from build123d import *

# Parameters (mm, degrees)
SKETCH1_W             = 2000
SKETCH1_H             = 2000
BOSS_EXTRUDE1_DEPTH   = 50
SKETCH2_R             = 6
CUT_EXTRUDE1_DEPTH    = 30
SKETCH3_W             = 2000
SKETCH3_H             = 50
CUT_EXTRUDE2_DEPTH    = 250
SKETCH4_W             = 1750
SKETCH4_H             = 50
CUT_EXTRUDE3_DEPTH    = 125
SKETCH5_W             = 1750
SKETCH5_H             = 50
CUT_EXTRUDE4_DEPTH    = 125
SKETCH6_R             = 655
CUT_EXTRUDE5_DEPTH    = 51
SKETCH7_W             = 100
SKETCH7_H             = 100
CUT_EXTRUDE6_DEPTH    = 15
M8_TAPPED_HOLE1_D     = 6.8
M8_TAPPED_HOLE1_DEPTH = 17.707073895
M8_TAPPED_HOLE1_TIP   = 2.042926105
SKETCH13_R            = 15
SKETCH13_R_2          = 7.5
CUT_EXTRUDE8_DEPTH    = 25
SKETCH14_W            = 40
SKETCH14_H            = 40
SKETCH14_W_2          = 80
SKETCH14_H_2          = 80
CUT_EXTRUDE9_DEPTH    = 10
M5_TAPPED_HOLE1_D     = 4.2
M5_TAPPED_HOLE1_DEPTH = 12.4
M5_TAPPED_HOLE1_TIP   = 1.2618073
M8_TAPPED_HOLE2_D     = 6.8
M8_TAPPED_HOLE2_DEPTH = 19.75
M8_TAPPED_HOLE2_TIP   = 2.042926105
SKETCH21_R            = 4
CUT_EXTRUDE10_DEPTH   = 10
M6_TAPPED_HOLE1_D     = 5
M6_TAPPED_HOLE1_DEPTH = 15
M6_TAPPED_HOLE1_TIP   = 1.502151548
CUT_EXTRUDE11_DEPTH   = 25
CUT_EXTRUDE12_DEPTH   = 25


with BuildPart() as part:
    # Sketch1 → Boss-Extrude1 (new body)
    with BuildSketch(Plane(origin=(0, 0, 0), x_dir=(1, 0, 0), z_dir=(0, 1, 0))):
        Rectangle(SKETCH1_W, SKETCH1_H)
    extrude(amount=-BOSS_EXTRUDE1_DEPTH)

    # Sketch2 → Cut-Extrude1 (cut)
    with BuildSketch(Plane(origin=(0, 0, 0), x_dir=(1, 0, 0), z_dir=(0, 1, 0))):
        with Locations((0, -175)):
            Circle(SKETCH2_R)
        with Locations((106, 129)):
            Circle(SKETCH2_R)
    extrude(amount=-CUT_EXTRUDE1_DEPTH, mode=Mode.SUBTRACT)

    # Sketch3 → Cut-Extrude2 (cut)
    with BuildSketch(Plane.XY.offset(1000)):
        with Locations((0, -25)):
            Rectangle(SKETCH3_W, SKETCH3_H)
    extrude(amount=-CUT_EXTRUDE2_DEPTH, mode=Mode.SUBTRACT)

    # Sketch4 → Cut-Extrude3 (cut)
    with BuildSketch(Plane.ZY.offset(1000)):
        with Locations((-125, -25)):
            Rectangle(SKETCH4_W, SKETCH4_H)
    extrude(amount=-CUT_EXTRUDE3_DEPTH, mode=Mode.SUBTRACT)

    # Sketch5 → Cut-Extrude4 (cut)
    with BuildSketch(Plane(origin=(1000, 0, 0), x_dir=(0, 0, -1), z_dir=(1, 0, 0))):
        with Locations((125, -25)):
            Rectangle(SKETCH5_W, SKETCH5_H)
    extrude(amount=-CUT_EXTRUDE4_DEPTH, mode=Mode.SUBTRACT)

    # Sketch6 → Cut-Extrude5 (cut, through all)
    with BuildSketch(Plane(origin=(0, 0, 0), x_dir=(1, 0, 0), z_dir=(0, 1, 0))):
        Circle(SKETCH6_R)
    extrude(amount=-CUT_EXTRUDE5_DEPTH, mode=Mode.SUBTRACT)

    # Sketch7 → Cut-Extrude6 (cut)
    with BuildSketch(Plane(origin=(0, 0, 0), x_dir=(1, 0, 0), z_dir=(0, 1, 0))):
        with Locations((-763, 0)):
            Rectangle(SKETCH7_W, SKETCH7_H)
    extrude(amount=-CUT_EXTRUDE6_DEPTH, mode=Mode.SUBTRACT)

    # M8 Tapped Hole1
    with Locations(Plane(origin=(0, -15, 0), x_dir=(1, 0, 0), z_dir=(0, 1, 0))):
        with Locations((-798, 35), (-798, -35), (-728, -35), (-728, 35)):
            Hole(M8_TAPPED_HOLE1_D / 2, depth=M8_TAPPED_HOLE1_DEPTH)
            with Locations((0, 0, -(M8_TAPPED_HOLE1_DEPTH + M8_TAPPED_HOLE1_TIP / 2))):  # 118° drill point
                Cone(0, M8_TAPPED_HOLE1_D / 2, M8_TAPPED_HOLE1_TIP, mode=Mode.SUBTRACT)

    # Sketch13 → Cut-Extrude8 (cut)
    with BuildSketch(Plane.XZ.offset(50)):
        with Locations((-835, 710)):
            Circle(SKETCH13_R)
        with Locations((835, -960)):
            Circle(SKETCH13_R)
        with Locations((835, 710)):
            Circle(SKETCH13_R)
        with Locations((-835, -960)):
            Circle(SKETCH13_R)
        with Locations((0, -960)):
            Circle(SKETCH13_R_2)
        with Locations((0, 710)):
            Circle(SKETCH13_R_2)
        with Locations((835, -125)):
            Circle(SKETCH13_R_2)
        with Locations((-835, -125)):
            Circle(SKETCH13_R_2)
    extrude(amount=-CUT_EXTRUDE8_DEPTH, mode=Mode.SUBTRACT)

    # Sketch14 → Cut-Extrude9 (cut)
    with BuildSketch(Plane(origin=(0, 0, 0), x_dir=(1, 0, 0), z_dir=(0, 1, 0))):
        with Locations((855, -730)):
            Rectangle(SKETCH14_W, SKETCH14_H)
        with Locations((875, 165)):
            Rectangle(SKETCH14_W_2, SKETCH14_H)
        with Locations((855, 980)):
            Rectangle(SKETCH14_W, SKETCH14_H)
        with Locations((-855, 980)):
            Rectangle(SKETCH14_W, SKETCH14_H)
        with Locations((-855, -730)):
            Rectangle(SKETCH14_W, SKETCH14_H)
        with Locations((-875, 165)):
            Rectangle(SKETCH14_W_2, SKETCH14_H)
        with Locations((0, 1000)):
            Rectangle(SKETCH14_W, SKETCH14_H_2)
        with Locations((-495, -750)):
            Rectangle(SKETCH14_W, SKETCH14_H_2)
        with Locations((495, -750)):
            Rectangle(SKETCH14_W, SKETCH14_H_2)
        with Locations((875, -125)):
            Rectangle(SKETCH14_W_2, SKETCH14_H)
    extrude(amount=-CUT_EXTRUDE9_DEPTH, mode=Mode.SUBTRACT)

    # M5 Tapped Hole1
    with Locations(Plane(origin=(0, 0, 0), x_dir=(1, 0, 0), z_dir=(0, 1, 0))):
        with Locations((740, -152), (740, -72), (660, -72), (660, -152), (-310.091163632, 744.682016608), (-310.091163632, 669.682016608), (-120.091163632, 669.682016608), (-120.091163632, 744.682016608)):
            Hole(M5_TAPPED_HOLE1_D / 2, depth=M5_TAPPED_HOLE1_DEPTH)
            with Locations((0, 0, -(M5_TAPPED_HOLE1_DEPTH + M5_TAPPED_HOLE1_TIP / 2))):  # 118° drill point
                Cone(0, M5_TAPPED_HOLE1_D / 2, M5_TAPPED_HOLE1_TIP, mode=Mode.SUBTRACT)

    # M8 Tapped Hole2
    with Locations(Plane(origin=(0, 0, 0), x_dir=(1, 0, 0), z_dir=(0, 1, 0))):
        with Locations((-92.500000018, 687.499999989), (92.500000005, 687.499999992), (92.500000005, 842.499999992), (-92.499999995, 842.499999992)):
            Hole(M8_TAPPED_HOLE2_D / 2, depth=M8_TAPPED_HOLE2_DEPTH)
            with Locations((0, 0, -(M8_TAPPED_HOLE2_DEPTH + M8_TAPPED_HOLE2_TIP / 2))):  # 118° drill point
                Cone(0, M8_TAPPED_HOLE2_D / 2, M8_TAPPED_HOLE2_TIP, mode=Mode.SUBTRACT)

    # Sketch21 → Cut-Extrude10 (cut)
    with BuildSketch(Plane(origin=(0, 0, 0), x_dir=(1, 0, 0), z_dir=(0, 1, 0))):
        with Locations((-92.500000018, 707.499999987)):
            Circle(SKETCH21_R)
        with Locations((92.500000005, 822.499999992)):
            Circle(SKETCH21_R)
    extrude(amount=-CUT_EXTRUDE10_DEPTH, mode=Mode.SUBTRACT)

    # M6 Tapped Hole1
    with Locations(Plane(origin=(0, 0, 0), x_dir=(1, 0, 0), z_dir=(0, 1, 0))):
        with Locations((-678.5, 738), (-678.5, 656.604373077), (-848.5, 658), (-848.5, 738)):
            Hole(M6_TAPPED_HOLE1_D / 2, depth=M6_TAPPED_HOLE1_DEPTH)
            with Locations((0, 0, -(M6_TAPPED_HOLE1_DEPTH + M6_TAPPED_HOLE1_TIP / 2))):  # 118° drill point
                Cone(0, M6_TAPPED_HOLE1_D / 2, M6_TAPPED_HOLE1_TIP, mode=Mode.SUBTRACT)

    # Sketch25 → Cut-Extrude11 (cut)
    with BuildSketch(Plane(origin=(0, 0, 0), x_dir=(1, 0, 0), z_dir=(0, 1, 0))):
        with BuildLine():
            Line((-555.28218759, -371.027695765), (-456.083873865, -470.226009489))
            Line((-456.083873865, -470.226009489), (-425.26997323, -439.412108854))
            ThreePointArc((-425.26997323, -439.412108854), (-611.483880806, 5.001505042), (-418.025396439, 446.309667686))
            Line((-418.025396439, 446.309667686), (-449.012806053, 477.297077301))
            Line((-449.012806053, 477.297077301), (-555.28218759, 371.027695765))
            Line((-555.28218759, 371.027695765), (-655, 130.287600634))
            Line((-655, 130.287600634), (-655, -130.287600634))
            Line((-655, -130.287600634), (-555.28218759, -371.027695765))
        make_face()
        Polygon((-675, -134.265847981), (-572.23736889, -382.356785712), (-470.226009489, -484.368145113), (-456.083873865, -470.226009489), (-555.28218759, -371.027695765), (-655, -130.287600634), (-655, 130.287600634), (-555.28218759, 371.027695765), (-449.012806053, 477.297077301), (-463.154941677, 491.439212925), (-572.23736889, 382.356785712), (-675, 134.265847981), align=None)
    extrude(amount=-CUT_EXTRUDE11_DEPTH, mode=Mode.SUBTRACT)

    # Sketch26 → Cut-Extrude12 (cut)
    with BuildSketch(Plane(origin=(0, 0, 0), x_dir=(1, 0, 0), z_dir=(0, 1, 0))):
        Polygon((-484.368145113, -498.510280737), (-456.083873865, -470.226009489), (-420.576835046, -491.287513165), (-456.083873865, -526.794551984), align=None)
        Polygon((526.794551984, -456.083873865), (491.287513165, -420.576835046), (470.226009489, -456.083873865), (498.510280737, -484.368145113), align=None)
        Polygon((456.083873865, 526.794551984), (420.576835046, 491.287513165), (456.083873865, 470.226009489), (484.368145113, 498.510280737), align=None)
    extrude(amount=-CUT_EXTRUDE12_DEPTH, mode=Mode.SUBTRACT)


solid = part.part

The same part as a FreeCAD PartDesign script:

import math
import FreeCAD as App
import Part
import Sketcher
Q = App.Units.Quantity


def add_polygon(sketch, points):
    """Adds a closed chain of lines whose ends are joined by coincident constraints."""
    first, n = sketch.GeometryCount, len(points)
    for a, b in zip(points, points[1:] + points[:1]):
        sketch.addGeometry(Part.LineSegment(App.Vector(*a, 0), App.Vector(*b, 0)), False)
    for i in range(n):
        sketch.addConstraint(Sketcher.Constraint("Coincident", first + i, 2, first + (i + 1) % n, 1))

doc = App.newDocument("Part")
body = doc.addObject("PartDesign::Body", "Body")

# Sketch on XZ plane
sketch1 = body.newObject("Sketcher::SketchObject", "Sketch")
sketch1.AttachmentSupport = (doc.getObject("XZ_Plane"), [""])
sketch1.MapMode = "FlatFace"
add_polygon(sketch1, [(-1000, -1000), (-1000, 1000), (1000, 1000), (1000, -1000)])  # lines 0-3
sketch1.addConstraint(Sketcher.Constraint("Vertical", 0))
sketch1.addConstraint(Sketcher.Constraint("Horizontal", 1))
sketch1.addConstraint(Sketcher.Constraint("Vertical", 2))
sketch1.addConstraint(Sketcher.Constraint("Horizontal", 3))
sketch1.addConstraint(Sketcher.Constraint("Symmetric", 0, 2, 2, 2, -1, 1))
sketch1.addConstraint(Sketcher.Constraint("Equal", 3, 0))
sketch1.addConstraint(Sketcher.Constraint("DistanceX", 1, 1, 1, 2, 2000.0))
pad1 = body.newObject("PartDesign::Pad", "Pad")
pad1.Profile = sketch1
pad1.Length = 50

# Sketch on XZ plane
sketch2 = body.newObject("Sketcher::SketchObject", "Sketch001")
sketch2.AttachmentSupport = (doc.getObject("XZ_Plane"), [""])
sketch2.MapMode = "FlatFace"
sketch2.addGeometry(Part.Circle(App.Vector(0, 175, 0), App.Vector(0, 0, 1), 6), False)
sketch2.addGeometry(Part.Circle(App.Vector(106, -129, 0), App.Vector(0, 0, 1), 6), False)
sketch2.addConstraint(Sketcher.Constraint("Equal", 0, 1))
sketch2.addConstraint(Sketcher.Constraint("PointOnObject", 0, 3, -2))
sketch2.addConstraint(Sketcher.Constraint("Diameter", 0, 12.0))
sketch2.addConstraint(Sketcher.Constraint("DistanceY", -1, 1, 0, 3, 175.0))
sketch2.addConstraint(Sketcher.Constraint("DistanceX", -1, 1, 1, 3, 106.0))
sketch2.addConstraint(Sketcher.Constraint("DistanceY", 1, 3, -1, 1, 129.0))
pocket1 = body.newObject("PartDesign::Pocket", "Pocket")
pocket1.Profile = sketch2
pocket1.Length = 30
pocket1.Reversed = True

# Sketch on XY plane
sketch3 = body.newObject("Sketcher::SketchObject", "Sketch002")
sketch3.AttachmentSupport = (doc.getObject("XY_Plane"), [""])
sketch3.MapMode = "FlatFace"
sketch3.AttachmentOffset = App.Placement(App.Vector(0, 0, 1000), App.Rotation())
add_polygon(sketch3, [(-1000, 0), (-1000, -50), (1000, -50), (1000, 0)])  # lines 0-3
sketch3.addConstraint(Sketcher.Constraint("Vertical", 0))
sketch3.addConstraint(Sketcher.Constraint("Horizontal", 1))
sketch3.addConstraint(Sketcher.Constraint("Vertical", 2))
sketch3.addConstraint(Sketcher.Constraint("Horizontal", 3))
sketch3.addConstraint(Sketcher.Constraint("Symmetric", 2, 2, 3, 2, -1, 1))
sketch3.addConstraint(Sketcher.Constraint("DistanceX", 1, 1, 1, 2, 2000.0))
sketch3.addConstraint(Sketcher.Constraint("DistanceY", 0, 2, 0, 1, 50.0))
pocket2 = body.newObject("PartDesign::Pocket", "Pocket001")
pocket2.Profile = sketch3
pocket2.Length = 250

# Sketch on YZ plane
sketch4 = body.newObject("Sketcher::SketchObject", "Sketch003")
sketch4.AttachmentSupport = (doc.getObject("YZ_Plane"), [""])
sketch4.MapMode = "FlatFace"
sketch4.AttachmentOffset = App.Placement(App.Vector(0, 0, -1000), App.Rotation())
add_polygon(sketch4, [(0, -1000), (-50, -1000), (-50, 750), (0, 750)])  # lines 0-3
sketch4.addConstraint(Sketcher.Constraint("Horizontal", 0))
sketch4.addConstraint(Sketcher.Constraint("Vertical", 1))
sketch4.addConstraint(Sketcher.Constraint("Horizontal", 2))
sketch4.addConstraint(Sketcher.Constraint("Vertical", 3))
sketch4.addConstraint(Sketcher.Constraint("PointOnObject", 2, 2, -2))
sketch4.addConstraint(Sketcher.Constraint("DistanceX", 0, 2, 0, 1, 50.0))
sketch4.addConstraint(Sketcher.Constraint("DistanceY", 1, 1, 1, 2, 1750.0))
sketch4.addConstraint(Sketcher.Constraint("DistanceY", 0, 2, -1, 1, 1000.0))
pocket3 = body.newObject("PartDesign::Pocket", "Pocket002")
pocket3.Profile = sketch4
pocket3.Length = 125
pocket3.Reversed = True

# Sketch on YZ plane
sketch5 = body.newObject("Sketcher::SketchObject", "Sketch004")
sketch5.AttachmentSupport = (doc.getObject("YZ_Plane"), [""])
sketch5.MapMode = "FlatFace"
sketch5.AttachmentOffset = App.Placement(App.Vector(0, 0, 1000), App.Rotation())
add_polygon(sketch5, [(0, 750), (-50, 750), (-50, -1000), (0, -1000)])  # lines 0-3
sketch5.addConstraint(Sketcher.Constraint("Horizontal", 0))
sketch5.addConstraint(Sketcher.Constraint("Vertical", 1))
sketch5.addConstraint(Sketcher.Constraint("Horizontal", 2))
sketch5.addConstraint(Sketcher.Constraint("Vertical", 3))
sketch5.addConstraint(Sketcher.Constraint("PointOnObject", 2, 2, -2))
sketch5.addConstraint(Sketcher.Constraint("DistanceX", 0, 2, 0, 1, 50.0))
sketch5.addConstraint(Sketcher.Constraint("DistanceY", 1, 2, 1, 1, 1750.0))
sketch5.addConstraint(Sketcher.Constraint("DistanceY", -1, 1, 0, 2, 750.0))
pocket4 = body.newObject("PartDesign::Pocket", "Pocket003")
pocket4.Profile = sketch5
pocket4.Length = 125

# Sketch on XZ plane
sketch6 = body.newObject("Sketcher::SketchObject", "Sketch005")
sketch6.AttachmentSupport = (doc.getObject("XZ_Plane"), [""])
sketch6.MapMode = "FlatFace"
sketch6.addGeometry(Part.Circle(App.Vector(0, 0, 0), App.Vector(0, 0, 1), 655), False)
sketch6.addConstraint(Sketcher.Constraint("Coincident", 0, 3, -1, 1))
sketch6.addConstraint(Sketcher.Constraint("Diameter", 0, 1310.0))
pocket5 = body.newObject("PartDesign::Pocket", "Pocket004")
pocket5.Profile = sketch6
pocket5.Type = "ThroughAll"
pocket5.Reversed = True

# Sketch on XZ plane
sketch7 = body.newObject("Sketcher::SketchObject", "Sketch006")
sketch7.AttachmentSupport = (doc.getObject("XZ_Plane"), [""])
sketch7.MapMode = "FlatFace"
add_polygon(sketch7, [(-813, -50), (-813, 50), (-713, 50), (-713, -50)])  # lines 0-3
sketch7.addConstraint(Sketcher.Constraint("Vertical", 0))
sketch7.addConstraint(Sketcher.Constraint("Horizontal", 1))
sketch7.addConstraint(Sketcher.Constraint("Vertical", 2))
sketch7.addConstraint(Sketcher.Constraint("Horizontal", 3))
sketch7.addConstraint(Sketcher.Constraint("Equal", 3, 0))
sketch7.addConstraint(Sketcher.Constraint("DistanceX", 1, 1, 1, 2, 100.0))
sketch7.addConstraint(Sketcher.Constraint("DistanceX", 0, 2, -1, 1, 813.0))
sketch7.addConstraint(Sketcher.Constraint("DistanceY", -1, 1, 0, 2, 50.0))
pocket6 = body.newObject("PartDesign::Pocket", "Pocket005")
pocket6.Profile = sketch7
pocket6.Length = 15
pocket6.Reversed = True

# Sketch on XZ plane
sketch8 = body.newObject("Sketcher::SketchObject", "Sketch007")
sketch8.AttachmentSupport = (doc.getObject("XZ_Plane"), [""])
sketch8.MapMode = "FlatFace"
sketch8.AttachmentOffset = App.Placement(App.Vector(0, 0, 15), App.Rotation())
sketch8.addGeometry(Part.Circle(App.Vector(-798, -35, 0), App.Vector(0, 0, 1), 3.4), False)
sketch8.addGeometry(Part.Circle(App.Vector(-798, 35, 0), App.Vector(0, 0, 1), 3.4), False)
sketch8.addGeometry(Part.Circle(App.Vector(-728, 35, 0), App.Vector(0, 0, 1), 3.4), False)
sketch8.addGeometry(Part.Circle(App.Vector(-728, -35, 0), App.Vector(0, 0, 1), 3.4), False)
sketch8.addConstraint(Sketcher.Constraint("Equal", 0, 1))
sketch8.addConstraint(Sketcher.Constraint("Equal", 1, 2))
sketch8.addConstraint(Sketcher.Constraint("Equal", 2, 3))
sketch8.addConstraint(Sketcher.Constraint("Symmetric", 0, 3, 1, 3, -1))
sketch8.addConstraint(Sketcher.Constraint("Symmetric", 2, 3, 3, 3, -1))
sketch8.addConstraint(Sketcher.Constraint("Horizontal", 1, 3, 2, 3))
sketch8.addConstraint(Sketcher.Constraint("Diameter", 0, 6.8))
sketch8.addConstraint(Sketcher.Constraint("DistanceX", 0, 3, -1, 1, 798.0))
sketch8.addConstraint(Sketcher.Constraint("DistanceY", 0, 3, -1, 1, 35.0))
sketch8.addConstraint(Sketcher.Constraint("DistanceX", 2, 3, -1, 1, 728.0))
doc.recompute()
hole = body.newObject("PartDesign::Hole", "Hole")
hole.Profile = sketch8
hole.ThreadType = "None"
hole.Diameter = 6.8
hole.DepthType = "Dimension"
hole.Depth = 17.707074
hole.DrillPoint = "Angled"
hole.DrillPointAngle = 118
hole.Reversed = True

# Sketch on XZ plane
sketch9 = body.newObject("Sketcher::SketchObject", "Sketch008")
sketch9.AttachmentSupport = (doc.getObject("XZ_Plane"), [""])
sketch9.MapMode = "FlatFace"
sketch9.AttachmentOffset = App.Placement(App.Vector(0, 0, 50), App.Rotation())
sketch9.addGeometry(Part.Circle(App.Vector(-835, 710, 0), App.Vector(0, 0, 1), 15), False)
sketch9.addGeometry(Part.Circle(App.Vector(835, -960, 0), App.Vector(0, 0, 1), 15), False)
sketch9.addGeometry(Part.Circle(App.Vector(835, 710, 0), App.Vector(0, 0, 1), 15), False)
sketch9.addGeometry(Part.Circle(App.Vector(-835, -960, 0), App.Vector(0, 0, 1), 15), False)
sketch9.addGeometry(Part.Circle(App.Vector(0, -960, 0), App.Vector(0, 0, 1), 8), False)
sketch9.addGeometry(Part.Circle(App.Vector(0, 710, 0), App.Vector(0, 0, 1), 8), False)
sketch9.addGeometry(Part.Circle(App.Vector(835, -125, 0), App.Vector(0, 0, 1), 8), False)
sketch9.addGeometry(Part.Circle(App.Vector(-835, -125, 0), App.Vector(0, 0, 1), 8), False)
sketch9.addConstraint(Sketcher.Constraint("Equal", 0, 1))
sketch9.addConstraint(Sketcher.Constraint("Equal", 1, 2))
sketch9.addConstraint(Sketcher.Constraint("Equal", 2, 3))
sketch9.addConstraint(Sketcher.Constraint("Equal", 4, 5))
sketch9.addConstraint(Sketcher.Constraint("Equal", 5, 6))
sketch9.addConstraint(Sketcher.Constraint("Equal", 6, 7))
sketch9.addConstraint(Sketcher.Constraint("Symmetric", 0, 3, 2, 3, -2))
sketch9.addConstraint(Sketcher.Constraint("Symmetric", 1, 3, 3, 3, -2))
sketch9.addConstraint(Sketcher.Constraint("Symmetric", 6, 3, 7, 3, -2))
sketch9.addConstraint(Sketcher.Constraint("PointOnObject", 4, 3, -2))
sketch9.addConstraint(Sketcher.Constraint("PointOnObject", 5, 3, -2))
sketch9.addConstraint(Sketcher.Constraint("Horizontal", 3, 3, 4, 3))
sketch9.addConstraint(Sketcher.Constraint("Horizontal", 2, 3, 5, 3))
sketch9.addConstraint(Sketcher.Constraint("Vertical", 1, 3, 2, 3))
sketch9.addConstraint(Sketcher.Constraint("Vertical", 2, 3, 6, 3))
sketch9.addConstraint(Sketcher.Constraint("Diameter", 0, 30.0))
sketch9.addConstraint(Sketcher.Constraint("Diameter", 4, 15.0))
sketch9.addConstraint(Sketcher.Constraint("DistanceX", 0, 3, -1, 1, 835.0))
sketch9.addConstraint(Sketcher.Constraint("DistanceY", -1, 1, 0, 3, 710.0))
sketch9.addConstraint(Sketcher.Constraint("DistanceY", 1, 3, -1, 1, 960.0))
sketch9.addConstraint(Sketcher.Constraint("DistanceY", 6, 3, -1, 1, 125.0))
pocket7 = body.newObject("PartDesign::Pocket", "Pocket006")
pocket7.Profile = sketch9
pocket7.Length = 25

# Sketch on XZ plane
sketch10 = body.newObject("Sketcher::SketchObject", "Sketch009")
sketch10.AttachmentSupport = (doc.getObject("XZ_Plane"), [""])
sketch10.MapMode = "FlatFace"
add_polygon(sketch10, [(835, 710), (835, 750), (875, 750), (875, 710)])  # lines 0-3
add_polygon(sketch10, [(835, -185), (835, -145), (915, -145), (915, -185)])  # lines 4-7
add_polygon(sketch10, [(835, -1000), (835, -960), (875, -960), (875, -1000)])  # lines 8-11
add_polygon(sketch10, [(-875, -1000), (-875, -960), (-835, -960), (-835, -1000)])  # lines 12-15
add_polygon(sketch10, [(-875, 710), (-875, 750), (-835, 750), (-835, 710)])  # lines 16-19
add_polygon(sketch10, [(-915, -185), (-915, -145), (-835, -145), (-835, -185)])  # lines 20-23
add_polygon(sketch10, [(-20, -1040), (-20, -960), (20, -960), (20, -1040)])  # lines 24-27
add_polygon(sketch10, [(-515, 710), (-515, 790), (-475, 790), (-475, 710)])  # lines 28-31
add_polygon(sketch10, [(475, 710), (475, 790), (515, 790), (515, 710)])  # lines 32-35
add_polygon(sketch10, [(835, 105), (835, 145), (915, 145), (915, 105)])  # lines 36-39
sketch10.addConstraint(Sketcher.Constraint("Vertical", 0))
sketch10.addConstraint(Sketcher.Constraint("Horizontal", 1))
sketch10.addConstraint(Sketcher.Constraint("Vertical", 2))
sketch10.addConstraint(Sketcher.Constraint("Horizontal", 3))
sketch10.addConstraint(Sketcher.Constraint("Vertical", 4))
sketch10.addConstraint(Sketcher.Constraint("Horizontal", 5))
sketch10.addConstraint(Sketcher.Constraint("Vertical", 6))
sketch10.addConstraint(Sketcher.Constraint("Horizontal", 7))
sketch10.addConstraint(Sketcher.Constraint("Vertical", 8))
sketch10.addConstraint(Sketcher.Constraint("Horizontal", 9))
sketch10.addConstraint(Sketcher.Constraint("Vertical", 10))
sketch10.addConstraint(Sketcher.Constraint("Horizontal", 11))
sketch10.addConstraint(Sketcher.Constraint("Vertical", 12))
sketch10.addConstraint(Sketcher.Constraint("Horizontal", 13))
sketch10.addConstraint(Sketcher.Constraint("Vertical", 14))
sketch10.addConstraint(Sketcher.Constraint("Horizontal", 15))
sketch10.addConstraint(Sketcher.Constraint("Vertical", 16))
sketch10.addConstraint(Sketcher.Constraint("Horizontal", 17))
sketch10.addConstraint(Sketcher.Constraint("Vertical", 18))
sketch10.addConstraint(Sketcher.Constraint("Horizontal", 19))
sketch10.addConstraint(Sketcher.Constraint("Vertical", 20))
sketch10.addConstraint(Sketcher.Constraint("Horizontal", 21))
sketch10.addConstraint(Sketcher.Constraint("Vertical", 22))
sketch10.addConstraint(Sketcher.Constraint("Horizontal", 23))
sketch10.addConstraint(Sketcher.Constraint("Vertical", 24))
sketch10.addConstraint(Sketcher.Constraint("Horizontal", 25))
sketch10.addConstraint(Sketcher.Constraint("Vertical", 26))
sketch10.addConstraint(Sketcher.Constraint("Horizontal", 27))
sketch10.addConstraint(Sketcher.Constraint("Vertical", 28))
sketch10.addConstraint(Sketcher.Constraint("Horizontal", 29))
sketch10.addConstraint(Sketcher.Constraint("Vertical", 30))
sketch10.addConstraint(Sketcher.Constraint("Horizontal", 31))
sketch10.addConstraint(Sketcher.Constraint("Vertical", 32))
sketch10.addConstraint(Sketcher.Constraint("Horizontal", 33))
sketch10.addConstraint(Sketcher.Constraint("Vertical", 34))
sketch10.addConstraint(Sketcher.Constraint("Horizontal", 35))
sketch10.addConstraint(Sketcher.Constraint("Vertical", 36))
sketch10.addConstraint(Sketcher.Constraint("Horizontal", 37))
sketch10.addConstraint(Sketcher.Constraint("Vertical", 38))
sketch10.addConstraint(Sketcher.Constraint("Horizontal", 39))
sketch10.addConstraint(Sketcher.Constraint("Symmetric", 21, 2, 36, 2, -1, 1))
sketch10.addConstraint(Sketcher.Constraint("Symmetric", 9, 2, 12, 2, -2))
sketch10.addConstraint(Sketcher.Constraint("Symmetric", 11, 2, 14, 2, -2))
sketch10.addConstraint(Sketcher.Constraint("Symmetric", 1, 2, 16, 2, -2))
sketch10.addConstraint(Sketcher.Constraint("Symmetric", 3, 2, 18, 2, -2))
sketch10.addConstraint(Sketcher.Constraint("Symmetric", 5, 2, 20, 2, -2))
sketch10.addConstraint(Sketcher.Constraint("Symmetric", 7, 2, 22, 2, -2))
sketch10.addConstraint(Sketcher.Constraint("Symmetric", 29, 2, 32, 2, -2))
sketch10.addConstraint(Sketcher.Constraint("Symmetric", 31, 2, 34, 2, -2))
sketch10.addConstraint(Sketcher.Constraint("Horizontal", 13, 2, 24, 2))
sketch10.addConstraint(Sketcher.Constraint("Horizontal", 19, 2, 30, 2))
sketch10.addConstraint(Sketcher.Constraint("Vertical", 3, 2, 4, 2))
sketch10.addConstraint(Sketcher.Constraint("Vertical", 7, 2, 8, 2))
sketch10.addConstraint(Sketcher.Constraint("Vertical", 2, 2, 9, 2))
sketch10.addConstraint(Sketcher.Constraint("Vertical", 6, 2, 37, 2))
sketch10.addConstraint(Sketcher.Constraint("Equal", 19, 25))
sketch10.addConstraint(Sketcher.Constraint("Equal", 27, 29))
sketch10.addConstraint(Sketcher.Constraint("Equal", 35, 0))
sketch10.addConstraint(Sketcher.Constraint("Equal", 2, 4))
sketch10.addConstraint(Sketcher.Constraint("Equal", 6, 8))
sketch10.addConstraint(Sketcher.Constraint("Equal", 39, 24))
sketch10.addConstraint(Sketcher.Constraint("Equal", 26, 28))
sketch10.addConstraint(Sketcher.Constraint("Equal", 22, 36))
sketch10.addConstraint(Sketcher.Constraint("DistanceX", 1, 1, 1, 2, 40.0))
sketch10.addConstraint(Sketcher.Constraint("DistanceX", 5, 1, 5, 2, 80.0))
sketch10.addConstraint(Sketcher.Constraint("DistanceX", -1, 1, 0, 2, 835.0))
sketch10.addConstraint(Sketcher.Constraint("DistanceY", -1, 1, 0, 2, 750.0))
sketch10.addConstraint(Sketcher.Constraint("DistanceY", 4, 2, -1, 1, 145.0))
sketch10.addConstraint(Sketcher.Constraint("DistanceY", 8, 2, -1, 1, 960.0))
sketch10.addConstraint(Sketcher.Constraint("DistanceX", 24, 2, -1, 1, 20.0))
sketch10.addConstraint(Sketcher.Constraint("DistanceX", 28, 2, -1, 1, 515.0))
pocket8 = body.newObject("PartDesign::Pocket", "Pocket007")
pocket8.Profile = sketch10
pocket8.Length = 10
pocket8.Reversed = True

# Sketch on XZ plane
sketch11 = body.newObject("Sketcher::SketchObject", "Sketch010")
sketch11.AttachmentSupport = (doc.getObject("XZ_Plane"), [""])
sketch11.MapMode = "FlatFace"
sketch11.addGeometry(Part.Circle(App.Vector(740, 152, 0), App.Vector(0, 0, 1), 2.1), False)
sketch11.addGeometry(Part.Circle(App.Vector(740, 72, 0), App.Vector(0, 0, 1), 2.1), False)
sketch11.addGeometry(Part.Circle(App.Vector(660, 72, 0), App.Vector(0, 0, 1), 2.1), False)
sketch11.addGeometry(Part.Circle(App.Vector(660, 152, 0), App.Vector(0, 0, 1), 2.1), False)
sketch11.addGeometry(Part.Circle(App.Vector(-310.1, -744.7, 0), App.Vector(0, 0, 1), 2.1), False)
sketch11.addGeometry(Part.Circle(App.Vector(-310.1, -669.7, 0), App.Vector(0, 0, 1), 2.1), False)
sketch11.addGeometry(Part.Circle(App.Vector(-120.1, -669.7, 0), App.Vector(0, 0, 1), 2.1), False)
sketch11.addGeometry(Part.Circle(App.Vector(-120.1, -744.7, 0), App.Vector(0, 0, 1), 2.1), False)
sketch11.addConstraint(Sketcher.Constraint("Equal", 0, 1))
sketch11.addConstraint(Sketcher.Constraint("Equal", 1, 2))
sketch11.addConstraint(Sketcher.Constraint("Equal", 2, 3))
sketch11.addConstraint(Sketcher.Constraint("Equal", 3, 4))
sketch11.addConstraint(Sketcher.Constraint("Equal", 4, 5))
sketch11.addConstraint(Sketcher.Constraint("Equal", 5, 6))
sketch11.addConstraint(Sketcher.Constraint("Equal", 6, 7))
sketch11.addConstraint(Sketcher.Constraint("Horizontal", 1, 3, 2, 3))
sketch11.addConstraint(Sketcher.Constraint("Horizontal", 0, 3, 3, 3))
sketch11.addConstraint(Sketcher.Constraint("Horizontal", 5, 3, 6, 3))
sketch11.addConstraint(Sketcher.Constraint("Horizontal", 4, 3, 7, 3))
sketch11.addConstraint(Sketcher.Constraint("Vertical", 0, 3, 1, 3))
sketch11.addConstraint(Sketcher.Constraint("Vertical", 2, 3, 3, 3))
sketch11.addConstraint(Sketcher.Constraint("Vertical", 4, 3, 5, 3))
sketch11.addConstraint(Sketcher.Constraint("Vertical", 6, 3, 7, 3))
sketch11.addConstraint(Sketcher.Constraint("Diameter", 0, 4.2))
sketch11.addConstraint(Sketcher.Constraint("DistanceX", -1, 1, 0, 3, 740.0))
sketch11.addConstraint(Sketcher.Constraint("DistanceY", -1, 1, 0, 3, 152.0))
sketch11.addConstraint(Sketcher.Constraint("DistanceY", -1, 1, 1, 3, 72.0))
sketch11.addConstraint(Sketcher.Constraint("DistanceX", -1, 1, 2, 3, 660.0))
sketch11.addConstraint(Sketcher.Constraint("DistanceY", 4, 3, 5, 3, 75.0))
sketch11.addConstraint(Sketcher.Constraint("DistanceX", 5, 3, 6, 3, 190.0))
sketch11.addConstraint(Sketcher.Constraint("DistanceX", 4, 3, -1, 1, 310.091164))
sketch11.addConstraint(Sketcher.Constraint("DistanceY", 4, 3, -1, 1, 744.682017))
doc.recompute()
hole2 = body.newObject("PartDesign::Hole", "Hole001")
hole2.Profile = sketch11
hole2.ThreadType = "None"
hole2.Diameter = 4.2
hole2.DepthType = "Dimension"
hole2.Depth = 12.4
hole2.DrillPoint = "Angled"
hole2.DrillPointAngle = 118
hole2.Reversed = True

# Sketch on XZ plane
sketch12 = body.newObject("Sketcher::SketchObject", "Sketch011")
sketch12.AttachmentSupport = (doc.getObject("XZ_Plane"), [""])
sketch12.MapMode = "FlatFace"
sketch12.addGeometry(Part.Circle(App.Vector(-92.5, -687.5, 0), App.Vector(0, 0, 1), 3.4), False)
sketch12.addGeometry(Part.Circle(App.Vector(92.5, -687.5, 0), App.Vector(0, 0, 1), 3.4), False)
sketch12.addGeometry(Part.Circle(App.Vector(92.5, -842.5, 0), App.Vector(0, 0, 1), 3.4), False)
sketch12.addGeometry(Part.Circle(App.Vector(-92.5, -842.5, 0), App.Vector(0, 0, 1), 3.4), False)
sketch12.addConstraint(Sketcher.Constraint("Equal", 0, 1))
sketch12.addConstraint(Sketcher.Constraint("Equal", 1, 2))
sketch12.addConstraint(Sketcher.Constraint("Equal", 2, 3))
sketch12.addConstraint(Sketcher.Constraint("Symmetric", 0, 3, 1, 3, -2))
sketch12.addConstraint(Sketcher.Constraint("Symmetric", 2, 3, 3, 3, -2))
sketch12.addConstraint(Sketcher.Constraint("Vertical", 1, 3, 2, 3))
sketch12.addConstraint(Sketcher.Constraint("Diameter", 0, 6.8))
sketch12.addConstraint(Sketcher.Constraint("DistanceX", 0, 3, 1, 3, 185.0))
sketch12.addConstraint(Sketcher.Constraint("DistanceY", 2, 3, 1, 3, 155.0))
sketch12.addConstraint(Sketcher.Constraint("DistanceY", 0, 3, -1, 1, 687.5))
doc.recompute()
hole3 = body.newObject("PartDesign::Hole", "Hole002")
hole3.Profile = sketch12
hole3.ThreadType = "None"
hole3.Diameter = 6.8
hole3.DepthType = "Dimension"
hole3.Depth = 19.75
hole3.DrillPoint = "Angled"
hole3.DrillPointAngle = 118
hole3.Reversed = True

# Sketch on XZ plane
sketch13 = body.newObject("Sketcher::SketchObject", "Sketch012")
sketch13.AttachmentSupport = (doc.getObject("XZ_Plane"), [""])
sketch13.MapMode = "FlatFace"
sketch13.addGeometry(Part.Circle(App.Vector(-92.5, -707.5, 0), App.Vector(0, 0, 1), 4), False)
sketch13.addGeometry(Part.Circle(App.Vector(92.5, -822.5, 0), App.Vector(0, 0, 1), 4), False)
sketch13.addConstraint(Sketcher.Constraint("Equal", 0, 1))
sketch13.addConstraint(Sketcher.Constraint("Diameter", 0, 8.0))
sketch13.addConstraint(Sketcher.Constraint("DistanceX", 0, 3, 1, 3, 185.0))
sketch13.addConstraint(Sketcher.Constraint("DistanceY", 1, 3, 0, 3, 115.0))
sketch13.addConstraint(Sketcher.Constraint("DistanceX", 0, 3, -1, 1, 92.5))
sketch13.addConstraint(Sketcher.Constraint("DistanceY", 0, 3, -1, 1, 707.5))
pocket9 = body.newObject("PartDesign::Pocket", "Pocket008")
pocket9.Profile = sketch13
pocket9.Length = 10
pocket9.Reversed = True

# Sketch on XZ plane
sketch14 = body.newObject("Sketcher::SketchObject", "Sketch013")
sketch14.AttachmentSupport = (doc.getObject("XZ_Plane"), [""])
sketch14.MapMode = "FlatFace"
sketch14.addGeometry(Part.Circle(App.Vector(-678.5, -738, 0), App.Vector(0, 0, 1), 2.5), False)
sketch14.addGeometry(Part.Circle(App.Vector(-678.5, -656.6, 0), App.Vector(0, 0, 1), 2.5), False)
sketch14.addGeometry(Part.Circle(App.Vector(-848.5, -658, 0), App.Vector(0, 0, 1), 2.5), False)
sketch14.addGeometry(Part.Circle(App.Vector(-848.5, -738, 0), App.Vector(0, 0, 1), 2.5), False)
sketch14.addConstraint(Sketcher.Constraint("Equal", 0, 1))
sketch14.addConstraint(Sketcher.Constraint("Equal", 1, 2))
sketch14.addConstraint(Sketcher.Constraint("Equal", 2, 3))
sketch14.addConstraint(Sketcher.Constraint("Horizontal", 0, 3, 3, 3))
sketch14.addConstraint(Sketcher.Constraint("Vertical", 0, 3, 1, 3))
sketch14.addConstraint(Sketcher.Constraint("Vertical", 2, 3, 3, 3))
sketch14.addConstraint(Sketcher.Constraint("Diameter", 0, 5.0))
sketch14.addConstraint(Sketcher.Constraint("DistanceY", 0, 3, -1, 1, 738.0))
sketch14.addConstraint(Sketcher.Constraint("DistanceY", 2, 3, -1, 1, 658.0))
sketch14.addConstraint(Sketcher.Constraint("DistanceX", 2, 3, 1, 3, 170.0))
sketch14.addConstraint(Sketcher.Constraint("DistanceX", 0, 3, -1, 1, 678.5))
sketch14.addConstraint(Sketcher.Constraint("DistanceY", 1, 3, -1, 1, 656.604373))
doc.recompute()
hole4 = body.newObject("PartDesign::Hole", "Hole003")
hole4.Profile = sketch14
hole4.ThreadType = "None"
hole4.Diameter = 5
hole4.DepthType = "Dimension"
hole4.Depth = 15
hole4.DrillPoint = "Angled"
hole4.DrillPointAngle = 118
hole4.Reversed = True

# Sketch on XZ plane
sketch15 = body.newObject("Sketcher::SketchObject", "Sketch014")
sketch15.AttachmentSupport = (doc.getObject("XZ_Plane"), [""])
sketch15.MapMode = "FlatFace"
sketch15.addGeometry(Part.ArcOfCircle(Part.Circle(App.Vector(0, 0, 0), App.Vector(0, 0, 1), 612), math.radians(134), math.radians(227)), False)
sketch15.addGeometry(Part.LineSegment(App.Vector(-418, -446, 0), App.Vector(-449, -477, 0)), False)
sketch15.addGeometry(Part.LineSegment(App.Vector(-449, -477, 0), App.Vector(-463, -491, 0)), False)
sketch15.addGeometry(Part.LineSegment(App.Vector(-463, -491, 0), App.Vector(-572, -382, 0)), False)
sketch15.addGeometry(Part.LineSegment(App.Vector(-572, -382, 0), App.Vector(-675, -134, 0)), False)
sketch15.addGeometry(Part.LineSegment(App.Vector(-675, -134, 0), App.Vector(-675, 134, 0)), False)
sketch15.addGeometry(Part.LineSegment(App.Vector(-675, 134, 0), App.Vector(-572, 382, 0)), False)
sketch15.addGeometry(Part.LineSegment(App.Vector(-572, 382, 0), App.Vector(-470, 484, 0)), False)
sketch15.addGeometry(Part.LineSegment(App.Vector(-470, 484, 0), App.Vector(-425, 439, 0)), False)
sketch15.addConstraint(Sketcher.Constraint("Coincident", 0, 2, 1, 1))
sketch15.addConstraint(Sketcher.Constraint("Coincident", 1, 2, 2, 1))
sketch15.addConstraint(Sketcher.Constraint("Coincident", 2, 2, 3, 1))
sketch15.addConstraint(Sketcher.Constraint("Coincident", 3, 2, 4, 1))
sketch15.addConstraint(Sketcher.Constraint("Coincident", 4, 2, 5, 1))
sketch15.addConstraint(Sketcher.Constraint("Coincident", 5, 2, 6, 1))
sketch15.addConstraint(Sketcher.Constraint("Coincident", 6, 2, 7, 1))
sketch15.addConstraint(Sketcher.Constraint("Coincident", 7, 2, 8, 1))
sketch15.addConstraint(Sketcher.Constraint("Coincident", 8, 2, 0, 1))
sketch15.addConstraint(Sketcher.Constraint("Vertical", 5))
sketch15.addConstraint(Sketcher.Constraint("Coincident", 0, 3, -1, 1))
sketch15.addConstraint(Sketcher.Constraint("Symmetric", 3, 2, 6, 2, -1))
sketch15.addConstraint(Sketcher.Constraint("Parallel", 1, 2))
sketch15.addConstraint(Sketcher.Constraint("Perpendicular", 2, 3))
sketch15.addConstraint(Sketcher.Constraint("Perpendicular", 3, 7))
sketch15.addConstraint(Sketcher.Constraint("Perpendicular", 7, 8))
sketch15.addConstraint(Sketcher.Constraint("Equal", 4, 6))
sketch15.addConstraint(Sketcher.Constraint("Angle", 1, Q("-135 deg")))
sketch15.addConstraint(Sketcher.Constraint("Distance", 2, 20.0))
sketch15.addConstraint(Sketcher.Constraint("DistanceX", 4, 2, -1, 1, 675.0))
sketch15.addConstraint(Sketcher.Constraint("Angle", 4, Q("112.5 deg")))
sketch15.addConstraint(Sketcher.Constraint("Radius", 0, 611.504335))
sketch15.addConstraint(Sketcher.Constraint("DistanceY", 5, 1, 5, 2, 268.531696))
sketch15.addConstraint(Sketcher.Constraint("DistanceX", 2, 2, -1, 1, 463.154942))
sketch15.addConstraint(Sketcher.Constraint("DistanceX", 3, 2, -1, 1, 572.237369))
sketch15.addConstraint(Sketcher.Constraint("DistanceX", 7, 2, -1, 1, 470.226009))
pocket10 = body.newObject("PartDesign::Pocket", "Pocket009")
pocket10.Profile = sketch15
pocket10.Length = 25
pocket10.Reversed = True

# Sketch on XZ plane
sketch16 = body.newObject("Sketcher::SketchObject", "Sketch015")
sketch16.AttachmentSupport = (doc.getObject("XZ_Plane"), [""])
sketch16.MapMode = "FlatFace"
add_polygon(sketch16, [(-456, 470), (-484, 499), (-456, 527), (-421, 491)])  # lines 0-3
add_polygon(sketch16, [(527, 456), (491, 421), (470, 456), (499, 484)])  # lines 4-7
add_polygon(sketch16, [(456, -527), (421, -491), (456, -470), (484, -499)])  # lines 8-11
sketch16.addConstraint(Sketcher.Constraint("Symmetric", 2, 2, 8, 2, -1, 1))
sketch16.addConstraint(Sketcher.Constraint("Symmetric", 3, 2, 9, 2, -1, 1))
sketch16.addConstraint(Sketcher.Constraint("Symmetric", 0, 2, 10, 2, -1, 1))
sketch16.addConstraint(Sketcher.Constraint("Symmetric", 1, 2, 11, 2, -1, 1))
sketch16.addConstraint(Sketcher.Constraint("Perpendicular", 0, 1))
sketch16.addConstraint(Sketcher.Constraint("Perpendicular", 1, 2))
sketch16.addConstraint(Sketcher.Constraint("Perpendicular", 2, 4))
sketch16.addConstraint(Sketcher.Constraint("Perpendicular", 3, 5))
sketch16.addConstraint(Sketcher.Constraint("Parallel", 4, 6))
sketch16.addConstraint(Sketcher.Constraint("Perpendicular", 6, 7))
sketch16.addConstraint(Sketcher.Constraint("Horizontal", 5, 2, 7, 2))
sketch16.addConstraint(Sketcher.Constraint("Vertical", 1, 2, 3, 2))
sketch16.addConstraint(Sketcher.Constraint("Equal", 0, 1))
sketch16.addConstraint(Sketcher.Constraint("Equal", 2, 4))
sketch16.addConstraint(Sketcher.Constraint("Distance", 0, 40.0))
sketch16.addConstraint(Sketcher.Constraint("DistanceY", -1, 1, 0, 2, 498.510281))
sketch16.addConstraint(Sketcher.Constraint("DistanceX", -1, 1, 5, 2, 470.226009))
sketch16.addConstraint(Sketcher.Constraint("DistanceX", 1, 2, 2, 2, 35.507039))
sketch16.addConstraint(Sketcher.Constraint("DistanceX", 2, 2, 4, 2, 911.864348))
sketch16.addConstraint(Sketcher.Constraint("DistanceY", 4, 2, 2, 2, 70.710678))
pocket11 = body.newObject("PartDesign::Pocket", "Pocket010")
pocket11.Profile = sketch16
pocket11.Length = 25
pocket11.Reversed = True

doc.recompute()
